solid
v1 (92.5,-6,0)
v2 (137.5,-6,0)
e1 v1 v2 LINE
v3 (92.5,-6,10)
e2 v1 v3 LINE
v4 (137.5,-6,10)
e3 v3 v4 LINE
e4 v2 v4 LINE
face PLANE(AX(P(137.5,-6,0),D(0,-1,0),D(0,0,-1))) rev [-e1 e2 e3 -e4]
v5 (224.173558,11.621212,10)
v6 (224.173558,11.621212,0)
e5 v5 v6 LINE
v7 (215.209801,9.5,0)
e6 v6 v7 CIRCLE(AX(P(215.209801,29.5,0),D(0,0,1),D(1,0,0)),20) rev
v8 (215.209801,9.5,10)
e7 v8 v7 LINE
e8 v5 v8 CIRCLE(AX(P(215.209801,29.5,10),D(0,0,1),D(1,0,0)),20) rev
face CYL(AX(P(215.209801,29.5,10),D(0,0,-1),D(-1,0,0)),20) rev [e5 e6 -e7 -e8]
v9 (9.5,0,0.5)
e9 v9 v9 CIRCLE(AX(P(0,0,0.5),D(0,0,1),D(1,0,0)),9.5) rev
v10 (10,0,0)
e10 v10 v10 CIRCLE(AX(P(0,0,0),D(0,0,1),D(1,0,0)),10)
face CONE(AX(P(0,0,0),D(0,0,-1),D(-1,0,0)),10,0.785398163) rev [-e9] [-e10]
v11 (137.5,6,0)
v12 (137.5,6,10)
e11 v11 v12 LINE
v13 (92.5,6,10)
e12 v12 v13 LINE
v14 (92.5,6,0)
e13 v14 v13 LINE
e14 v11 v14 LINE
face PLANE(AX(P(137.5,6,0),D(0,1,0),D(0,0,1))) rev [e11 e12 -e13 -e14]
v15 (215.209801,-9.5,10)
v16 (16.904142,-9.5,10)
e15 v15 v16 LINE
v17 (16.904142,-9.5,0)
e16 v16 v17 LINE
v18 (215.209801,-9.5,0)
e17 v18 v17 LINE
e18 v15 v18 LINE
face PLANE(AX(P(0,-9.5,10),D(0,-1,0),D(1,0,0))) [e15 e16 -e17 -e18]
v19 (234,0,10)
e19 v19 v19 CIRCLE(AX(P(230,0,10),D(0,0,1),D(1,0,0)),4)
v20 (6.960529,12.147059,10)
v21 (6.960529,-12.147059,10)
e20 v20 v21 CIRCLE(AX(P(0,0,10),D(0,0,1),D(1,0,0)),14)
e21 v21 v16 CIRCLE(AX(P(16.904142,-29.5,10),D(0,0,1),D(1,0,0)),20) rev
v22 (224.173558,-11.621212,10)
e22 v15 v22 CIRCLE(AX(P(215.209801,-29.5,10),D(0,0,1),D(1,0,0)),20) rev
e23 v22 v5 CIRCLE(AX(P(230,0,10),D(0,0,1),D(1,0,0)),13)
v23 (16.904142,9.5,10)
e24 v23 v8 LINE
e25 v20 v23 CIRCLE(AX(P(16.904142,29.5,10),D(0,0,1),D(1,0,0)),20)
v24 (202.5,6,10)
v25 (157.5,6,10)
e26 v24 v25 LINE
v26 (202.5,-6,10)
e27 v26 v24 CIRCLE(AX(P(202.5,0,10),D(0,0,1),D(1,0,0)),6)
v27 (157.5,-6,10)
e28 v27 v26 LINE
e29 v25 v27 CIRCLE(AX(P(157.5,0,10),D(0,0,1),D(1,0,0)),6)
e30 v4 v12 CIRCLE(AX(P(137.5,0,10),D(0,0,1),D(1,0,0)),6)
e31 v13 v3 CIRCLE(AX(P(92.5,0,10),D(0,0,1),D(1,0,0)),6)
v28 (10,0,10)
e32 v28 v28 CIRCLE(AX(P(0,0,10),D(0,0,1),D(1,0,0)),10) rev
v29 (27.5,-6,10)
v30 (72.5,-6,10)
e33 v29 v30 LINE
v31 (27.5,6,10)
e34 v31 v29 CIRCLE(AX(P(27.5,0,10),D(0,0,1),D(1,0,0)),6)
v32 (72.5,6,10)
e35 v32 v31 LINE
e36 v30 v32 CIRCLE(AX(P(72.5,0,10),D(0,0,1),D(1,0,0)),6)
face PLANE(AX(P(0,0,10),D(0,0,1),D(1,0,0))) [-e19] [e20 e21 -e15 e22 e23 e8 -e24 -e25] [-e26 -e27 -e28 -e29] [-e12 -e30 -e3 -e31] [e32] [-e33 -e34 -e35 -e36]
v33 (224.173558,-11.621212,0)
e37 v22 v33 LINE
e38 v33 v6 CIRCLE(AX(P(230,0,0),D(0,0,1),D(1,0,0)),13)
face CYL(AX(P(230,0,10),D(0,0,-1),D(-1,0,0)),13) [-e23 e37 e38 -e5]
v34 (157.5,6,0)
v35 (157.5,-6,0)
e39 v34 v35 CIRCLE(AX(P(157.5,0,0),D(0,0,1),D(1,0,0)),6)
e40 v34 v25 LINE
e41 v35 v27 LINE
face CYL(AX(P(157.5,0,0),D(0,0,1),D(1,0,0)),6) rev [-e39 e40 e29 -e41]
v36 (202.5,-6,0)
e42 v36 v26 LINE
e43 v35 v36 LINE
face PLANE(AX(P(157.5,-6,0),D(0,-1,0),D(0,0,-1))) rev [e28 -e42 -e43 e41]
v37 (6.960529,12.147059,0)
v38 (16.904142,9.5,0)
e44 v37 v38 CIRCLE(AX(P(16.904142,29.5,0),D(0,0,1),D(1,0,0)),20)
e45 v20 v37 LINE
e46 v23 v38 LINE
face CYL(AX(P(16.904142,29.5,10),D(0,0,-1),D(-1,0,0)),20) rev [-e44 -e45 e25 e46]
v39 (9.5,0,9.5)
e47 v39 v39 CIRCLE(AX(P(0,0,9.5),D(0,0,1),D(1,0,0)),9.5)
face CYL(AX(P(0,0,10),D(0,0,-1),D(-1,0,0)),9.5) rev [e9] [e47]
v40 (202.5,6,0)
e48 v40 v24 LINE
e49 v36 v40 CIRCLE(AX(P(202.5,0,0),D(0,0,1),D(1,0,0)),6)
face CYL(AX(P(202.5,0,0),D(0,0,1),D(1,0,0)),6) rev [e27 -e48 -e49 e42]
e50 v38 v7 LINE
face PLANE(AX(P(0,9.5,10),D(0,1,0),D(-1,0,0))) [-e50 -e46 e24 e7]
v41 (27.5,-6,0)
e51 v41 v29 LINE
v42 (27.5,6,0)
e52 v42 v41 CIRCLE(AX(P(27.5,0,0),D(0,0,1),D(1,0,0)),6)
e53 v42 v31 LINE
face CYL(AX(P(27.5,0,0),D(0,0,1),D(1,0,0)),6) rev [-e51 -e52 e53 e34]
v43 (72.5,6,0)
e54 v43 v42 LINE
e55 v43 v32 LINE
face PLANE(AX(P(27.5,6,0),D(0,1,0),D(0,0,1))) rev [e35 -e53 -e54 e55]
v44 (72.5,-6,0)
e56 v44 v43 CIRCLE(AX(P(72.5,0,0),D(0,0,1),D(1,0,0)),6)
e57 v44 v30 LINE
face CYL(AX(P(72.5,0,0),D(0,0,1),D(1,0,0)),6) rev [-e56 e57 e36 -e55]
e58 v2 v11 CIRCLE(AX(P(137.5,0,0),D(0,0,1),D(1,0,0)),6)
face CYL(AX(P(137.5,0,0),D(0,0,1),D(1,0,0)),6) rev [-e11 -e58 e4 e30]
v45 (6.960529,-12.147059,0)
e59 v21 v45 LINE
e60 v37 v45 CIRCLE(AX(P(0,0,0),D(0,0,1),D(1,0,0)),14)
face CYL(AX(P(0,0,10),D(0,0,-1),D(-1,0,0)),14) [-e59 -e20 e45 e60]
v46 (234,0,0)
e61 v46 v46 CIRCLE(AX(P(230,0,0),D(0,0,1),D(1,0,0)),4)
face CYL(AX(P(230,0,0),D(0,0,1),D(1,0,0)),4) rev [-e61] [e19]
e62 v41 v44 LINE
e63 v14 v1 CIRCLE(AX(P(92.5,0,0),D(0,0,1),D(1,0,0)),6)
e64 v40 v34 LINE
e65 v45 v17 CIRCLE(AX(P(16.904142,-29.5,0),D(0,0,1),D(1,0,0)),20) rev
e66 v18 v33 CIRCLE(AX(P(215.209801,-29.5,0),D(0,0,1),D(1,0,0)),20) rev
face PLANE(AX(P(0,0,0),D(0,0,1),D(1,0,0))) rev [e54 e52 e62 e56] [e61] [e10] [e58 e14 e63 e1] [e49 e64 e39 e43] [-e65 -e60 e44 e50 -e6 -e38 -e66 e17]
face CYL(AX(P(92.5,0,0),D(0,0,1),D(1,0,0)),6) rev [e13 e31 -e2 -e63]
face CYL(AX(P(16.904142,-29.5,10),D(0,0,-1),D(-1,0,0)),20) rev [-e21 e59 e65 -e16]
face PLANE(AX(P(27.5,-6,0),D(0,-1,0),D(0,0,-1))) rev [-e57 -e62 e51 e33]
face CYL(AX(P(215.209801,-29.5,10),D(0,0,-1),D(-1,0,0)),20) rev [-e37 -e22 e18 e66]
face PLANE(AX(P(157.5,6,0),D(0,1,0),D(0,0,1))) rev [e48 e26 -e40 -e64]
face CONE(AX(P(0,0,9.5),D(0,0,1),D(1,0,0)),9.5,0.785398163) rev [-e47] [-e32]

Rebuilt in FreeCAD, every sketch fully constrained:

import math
import FreeCAD as App
import Part
import Sketcher

V = App.Vector


def edges_at(feature, points):
    """Names of the edges that pass closest to the given points."""
    edges = feature.Shape.Edges
    near = lambda p: min(range(len(edges)), key=lambda i: edges[i].distToShape(Part.Vertex(*p))[0])
    return sorted({f"Edge{near(p) + 1}" for p in points})

doc = App.newDocument("Part")
body = doc.addObject("PartDesign::Body", "Body")

# Sketch on XY plane
sketch1 = body.newObject("Sketcher::SketchObject", "Sketch")
sketch1.AttachmentSupport = (doc.getObject("XY_Plane"), [""])
sketch1.MapMode = "FlatFace"
sketch1.addGeometry([
    Part.LineSegment(V(17, -10, 0), V(215, -10, 0)),  # 0
    Part.ArcOfCircle(Part.Circle(V(215, -30, 0), V(0, 0, 1), 20), math.radians(63), math.radians(90)),  # 1
    Part.ArcOfCircle(Part.Circle(V(230, 0, 0), V(0, 0, 1), 13), math.radians(-117), math.radians(117)),  # 2
    Part.ArcOfCircle(Part.Circle(V(215, 30, 0), V(0, 0, 1), 20), math.radians(-90), math.radians(-63)),  # 3
    Part.LineSegment(V(215, 10, 0), V(17, 10, 0)),  # 4
    Part.ArcOfCircle(Part.Circle(V(17, 29, 0), V(0, 0, 1), 20), math.radians(-120), math.radians(-90)),  # 5
    Part.ArcOfCircle(Part.Circle(V(0, 0, 0), V(0, 0, 1), 14), math.radians(60), math.radians(300)),  # 6
    Part.ArcOfCircle(Part.Circle(V(17, -29, 0), V(0, 0, 1), 20), math.radians(90), math.radians(120)),  # 7
    Part.Circle(V(0, 0, 0), V(0, 0, 1), 10),  # 8
    Part.Circle(V(230, 0, 0), V(0, 0, 1), 10),  # 9
], False)
sketch1.addConstraint([
    Sketcher.Constraint("Tangent", 0, 2, 1, 2),
    Sketcher.Constraint("Tangent", 1, 1, 2, 1),
    Sketcher.Constraint("Tangent", 2, 2, 3, 2),
    Sketcher.Constraint("Tangent", 3, 1, 4, 1),
    Sketcher.Constraint("Tangent", 4, 2, 5, 2),
    Sketcher.Constraint("Tangent", 5, 1, 6, 1),
    Sketcher.Constraint("Tangent", 6, 2, 7, 2),
    Sketcher.Constraint("Tangent", 7, 1, 0, 1),
    Sketcher.Constraint("Horizontal", 0),
    Sketcher.Constraint("Horizontal", 4),
    Sketcher.Constraint("Coincident", 6, 3, -1, 1),
    Sketcher.Constraint("Coincident", 8, 3, -1, 1),
    Sketcher.Constraint("Coincident", 9, 3, 2, 3),
    Sketcher.Constraint("Equal", 1, 3),
    Sketcher.Constraint("Equal", 3, 5),
    Sketcher.Constraint("Equal", 5, 7),
    Sketcher.Constraint("Equal", 8, 9),
    Sketcher.Constraint("Symmetric", 1, 3, 3, 3, -1),
    Sketcher.Constraint("Diameter", 8, 19.0),
    Sketcher.Constraint("Radius", 1, 20.0),
    Sketcher.Constraint("Radius", 2, 13.0),
    Sketcher.Constraint("Radius", 6, 14.0),
    Sketcher.Constraint("DistanceX", -1, 1, 2, 3, 230.0),
    Sketcher.Constraint("DistanceY", 1, 3, 3, 3, 59.0),
])
pad1 = body.newObject("PartDesign::Pad", "Pad")
pad1.Profile = sketch1
pad1.Length = 10
doc.recompute()

chamfer = body.newObject("PartDesign::Chamfer", "Chamfer")
chamfer.Base = (pad1, edges_at(pad1, [(-9.5, 0, 0), (-9.5, 0, 10)]))
chamfer.Size = 0.5

# Sketch on XY plane
sketch2 = body.newObject("Sketcher::SketchObject", "Sketch001")
sketch2.AttachmentSupport = (doc.getObject("XY_Plane"), [""])
sketch2.MapMode = "FlatFace"
sketch2.AttachmentOffset = App.Placement(V(0, 0, 10), App.Rotation())
sketch2.addGeometry([
    Part.LineSegment(V(92, -6, 0), V(137, -6, 0)),  # 0
    Part.ArcOfCircle(Part.Circle(V(137, 0, 0), V(0, 0, 1), 6), math.radians(-90), math.radians(90)),  # 1
    Part.LineSegment(V(137, 6, 0), V(92, 6, 0)),  # 2
    Part.ArcOfCircle(Part.Circle(V(92, 0, 0), V(0, 0, 1), 6), math.radians(90), math.radians(270)),  # 3
    Part.LineSegment(V(28, -6, 0), V(72, -6, 0)),  # 4
    Part.ArcOfCircle(Part.Circle(V(72, 0, 0), V(0, 0, 1), 6), math.radians(-90), math.radians(90)),  # 5
    Part.LineSegment(V(72, 6, 0), V(28, 6, 0)),  # 6
    Part.ArcOfCircle(Part.Circle(V(28, 0, 0), V(0, 0, 1), 6), math.radians(90), math.radians(270)),  # 7
    Part.LineSegment(V(158, -6, 0), V(202, -6, 0)),  # 8
    Part.ArcOfCircle(Part.Circle(V(202, 0, 0), V(0, 0, 1), 6), math.radians(-90), math.radians(90)),  # 9
    Part.LineSegment(V(202, 6, 0), V(158, 6, 0)),  # 10
    Part.ArcOfCircle(Part.Circle(V(158, 0, 0), V(0, 0, 1), 6), math.radians(90), math.radians(270)),  # 11
], False)
sketch2.addConstraint([
    Sketcher.Constraint("Tangent", 0, 2, 1, 1),
    Sketcher.Constraint("Tangent", 1, 2, 2, 1),
    Sketcher.Constraint("Tangent", 2, 2, 3, 1),
    Sketcher.Constraint("Tangent", 3, 2, 0, 1),
    Sketcher.Constraint("Tangent", 4, 2, 5, 1),
    Sketcher.Constraint("Tangent", 5, 2, 6, 1),
    Sketcher.Constraint("Tangent", 6, 2, 7, 1),
    Sketcher.Constraint("Tangent", 7, 2, 4, 1),
    Sketcher.Constraint("Tangent", 8, 2, 9, 1),
    Sketcher.Constraint("Tangent", 9, 2, 10, 1),
    Sketcher.Constraint("Tangent", 10, 2, 11, 1),
    Sketcher.Constraint("Tangent", 11, 2, 8, 1),
    Sketcher.Constraint("Horizontal", 0),
    Sketcher.Constraint("Horizontal", 2),
    Sketcher.Constraint("Horizontal", 4),
    Sketcher.Constraint("Horizontal", 6),
    Sketcher.Constraint("Horizontal", 8),
    Sketcher.Constraint("Horizontal", 10),
    Sketcher.Constraint("Equal", 3, 5),
    Sketcher.Constraint("Equal", 7, 9),
    Sketcher.Constraint("PointOnObject", 1, 3, -1),
    Sketcher.Constraint("PointOnObject", 5, 3, -1),
    Sketcher.Constraint("PointOnObject", 9, 3, -1),
    Sketcher.Constraint("Equal", 2, 4),
    Sketcher.Constraint("Equal", 6, 8),
    Sketcher.Constraint("Radius", 1, 6.0),
    Sketcher.Constraint("DistanceX", 0, 1, 0, 2, 45.0),
    Sketcher.Constraint("DistanceX", 5, 3, 3, 3, 20.0),
    Sketcher.Constraint("DistanceX", 1, 3, 9, 3, 65.0),
    Sketcher.Constraint("DistanceX", -1, 1, 1, 3, 137.5),
])
pocket1 = body.newObject("PartDesign::Pocket", "Pocket")
pocket1.Profile = sketch2
pocket1.Length = 10

# Sketch on XY plane
sketch3 = body.newObject("Sketcher::SketchObject", "Sketch002")
sketch3.AttachmentSupport = (doc.getObject("XY_Plane"), [""])
sketch3.MapMode = "FlatFace"
sketch3.addGeometry([
    Part.Circle(V(230, 0, 0), V(0, 0, 1), 9.5),
    Part.Circle(V(230, 0, 0), V(0, 0, 1), 4),
], False)
sketch3.addConstraint([
    Sketcher.Constraint("Coincident", 1, 3, 0, 3),
    Sketcher.Constraint("PointOnObject", 0, 3, -1),
    Sketcher.Constraint("Diameter", 0, 19.0),
    Sketcher.Constraint("Diameter", 1, 8.0),
    Sketcher.Constraint("DistanceX", -1, 1, 0, 3, 230.0),
])
pad2 = body.newObject("PartDesign::Pad", "Pad001")
pad2.Profile = sketch3
pad2.Length = 10

# Sketch on XY plane
sketch4 = body.newObject("Sketcher::SketchObject", "Sketch003")
sketch4.AttachmentSupport = (doc.getObject("XY_Plane"), [""])
sketch4.MapMode = "FlatFace"
sketch4.AttachmentOffset = App.Placement(V(0, 0, 10), App.Rotation())
sketch4.addGeometry(Part.Circle(V(230, 0, 0), V(0, 0, 1), 6), False)
sketch4.addConstraint([
    Sketcher.Constraint("PointOnObject", 0, 3, -1),
    Sketcher.Constraint("Diameter", 0, 12.0),
    Sketcher.Constraint("DistanceX", -1, 1, 0, 3, 230.0),
])
pocket2 = body.newObject("PartDesign::Pocket", "Pocket001")
pocket2.Profile = sketch4
pocket2.Length = 10

# Sketch on XY plane
sketch5 = body.newObject("Sketcher::SketchObject", "Sketch004")
sketch5.AttachmentSupport = (doc.getObject("XY_Plane"), [""])
sketch5.MapMode = "FlatFace"
sketch5.AttachmentOffset = App.Placement(V(0, 0, 10), App.Rotation())
sketch5.addGeometry([
    Part.Circle(V(230, 0, 0), V(0, 0, 1), 6),
    Part.Circle(V(230, 0, 0), V(0, 0, 1), 4),
], False)
sketch5.addConstraint([
    Sketcher.Constraint("Coincident", 1, 3, 0, 3),
    Sketcher.Constraint("PointOnObject", 0, 3, -1),
    Sketcher.Constraint("Diameter", 0, 12.0),
    Sketcher.Constraint("Diameter", 1, 8.0),
    Sketcher.Constraint("DistanceX", -1, 1, 0, 3, 230.0),
])
pad3 = body.newObject("PartDesign::Pad", "Pad002")
pad3.Profile = sketch5
pad3.Length = 10
pad3.Reversed = True

doc.recompute()
